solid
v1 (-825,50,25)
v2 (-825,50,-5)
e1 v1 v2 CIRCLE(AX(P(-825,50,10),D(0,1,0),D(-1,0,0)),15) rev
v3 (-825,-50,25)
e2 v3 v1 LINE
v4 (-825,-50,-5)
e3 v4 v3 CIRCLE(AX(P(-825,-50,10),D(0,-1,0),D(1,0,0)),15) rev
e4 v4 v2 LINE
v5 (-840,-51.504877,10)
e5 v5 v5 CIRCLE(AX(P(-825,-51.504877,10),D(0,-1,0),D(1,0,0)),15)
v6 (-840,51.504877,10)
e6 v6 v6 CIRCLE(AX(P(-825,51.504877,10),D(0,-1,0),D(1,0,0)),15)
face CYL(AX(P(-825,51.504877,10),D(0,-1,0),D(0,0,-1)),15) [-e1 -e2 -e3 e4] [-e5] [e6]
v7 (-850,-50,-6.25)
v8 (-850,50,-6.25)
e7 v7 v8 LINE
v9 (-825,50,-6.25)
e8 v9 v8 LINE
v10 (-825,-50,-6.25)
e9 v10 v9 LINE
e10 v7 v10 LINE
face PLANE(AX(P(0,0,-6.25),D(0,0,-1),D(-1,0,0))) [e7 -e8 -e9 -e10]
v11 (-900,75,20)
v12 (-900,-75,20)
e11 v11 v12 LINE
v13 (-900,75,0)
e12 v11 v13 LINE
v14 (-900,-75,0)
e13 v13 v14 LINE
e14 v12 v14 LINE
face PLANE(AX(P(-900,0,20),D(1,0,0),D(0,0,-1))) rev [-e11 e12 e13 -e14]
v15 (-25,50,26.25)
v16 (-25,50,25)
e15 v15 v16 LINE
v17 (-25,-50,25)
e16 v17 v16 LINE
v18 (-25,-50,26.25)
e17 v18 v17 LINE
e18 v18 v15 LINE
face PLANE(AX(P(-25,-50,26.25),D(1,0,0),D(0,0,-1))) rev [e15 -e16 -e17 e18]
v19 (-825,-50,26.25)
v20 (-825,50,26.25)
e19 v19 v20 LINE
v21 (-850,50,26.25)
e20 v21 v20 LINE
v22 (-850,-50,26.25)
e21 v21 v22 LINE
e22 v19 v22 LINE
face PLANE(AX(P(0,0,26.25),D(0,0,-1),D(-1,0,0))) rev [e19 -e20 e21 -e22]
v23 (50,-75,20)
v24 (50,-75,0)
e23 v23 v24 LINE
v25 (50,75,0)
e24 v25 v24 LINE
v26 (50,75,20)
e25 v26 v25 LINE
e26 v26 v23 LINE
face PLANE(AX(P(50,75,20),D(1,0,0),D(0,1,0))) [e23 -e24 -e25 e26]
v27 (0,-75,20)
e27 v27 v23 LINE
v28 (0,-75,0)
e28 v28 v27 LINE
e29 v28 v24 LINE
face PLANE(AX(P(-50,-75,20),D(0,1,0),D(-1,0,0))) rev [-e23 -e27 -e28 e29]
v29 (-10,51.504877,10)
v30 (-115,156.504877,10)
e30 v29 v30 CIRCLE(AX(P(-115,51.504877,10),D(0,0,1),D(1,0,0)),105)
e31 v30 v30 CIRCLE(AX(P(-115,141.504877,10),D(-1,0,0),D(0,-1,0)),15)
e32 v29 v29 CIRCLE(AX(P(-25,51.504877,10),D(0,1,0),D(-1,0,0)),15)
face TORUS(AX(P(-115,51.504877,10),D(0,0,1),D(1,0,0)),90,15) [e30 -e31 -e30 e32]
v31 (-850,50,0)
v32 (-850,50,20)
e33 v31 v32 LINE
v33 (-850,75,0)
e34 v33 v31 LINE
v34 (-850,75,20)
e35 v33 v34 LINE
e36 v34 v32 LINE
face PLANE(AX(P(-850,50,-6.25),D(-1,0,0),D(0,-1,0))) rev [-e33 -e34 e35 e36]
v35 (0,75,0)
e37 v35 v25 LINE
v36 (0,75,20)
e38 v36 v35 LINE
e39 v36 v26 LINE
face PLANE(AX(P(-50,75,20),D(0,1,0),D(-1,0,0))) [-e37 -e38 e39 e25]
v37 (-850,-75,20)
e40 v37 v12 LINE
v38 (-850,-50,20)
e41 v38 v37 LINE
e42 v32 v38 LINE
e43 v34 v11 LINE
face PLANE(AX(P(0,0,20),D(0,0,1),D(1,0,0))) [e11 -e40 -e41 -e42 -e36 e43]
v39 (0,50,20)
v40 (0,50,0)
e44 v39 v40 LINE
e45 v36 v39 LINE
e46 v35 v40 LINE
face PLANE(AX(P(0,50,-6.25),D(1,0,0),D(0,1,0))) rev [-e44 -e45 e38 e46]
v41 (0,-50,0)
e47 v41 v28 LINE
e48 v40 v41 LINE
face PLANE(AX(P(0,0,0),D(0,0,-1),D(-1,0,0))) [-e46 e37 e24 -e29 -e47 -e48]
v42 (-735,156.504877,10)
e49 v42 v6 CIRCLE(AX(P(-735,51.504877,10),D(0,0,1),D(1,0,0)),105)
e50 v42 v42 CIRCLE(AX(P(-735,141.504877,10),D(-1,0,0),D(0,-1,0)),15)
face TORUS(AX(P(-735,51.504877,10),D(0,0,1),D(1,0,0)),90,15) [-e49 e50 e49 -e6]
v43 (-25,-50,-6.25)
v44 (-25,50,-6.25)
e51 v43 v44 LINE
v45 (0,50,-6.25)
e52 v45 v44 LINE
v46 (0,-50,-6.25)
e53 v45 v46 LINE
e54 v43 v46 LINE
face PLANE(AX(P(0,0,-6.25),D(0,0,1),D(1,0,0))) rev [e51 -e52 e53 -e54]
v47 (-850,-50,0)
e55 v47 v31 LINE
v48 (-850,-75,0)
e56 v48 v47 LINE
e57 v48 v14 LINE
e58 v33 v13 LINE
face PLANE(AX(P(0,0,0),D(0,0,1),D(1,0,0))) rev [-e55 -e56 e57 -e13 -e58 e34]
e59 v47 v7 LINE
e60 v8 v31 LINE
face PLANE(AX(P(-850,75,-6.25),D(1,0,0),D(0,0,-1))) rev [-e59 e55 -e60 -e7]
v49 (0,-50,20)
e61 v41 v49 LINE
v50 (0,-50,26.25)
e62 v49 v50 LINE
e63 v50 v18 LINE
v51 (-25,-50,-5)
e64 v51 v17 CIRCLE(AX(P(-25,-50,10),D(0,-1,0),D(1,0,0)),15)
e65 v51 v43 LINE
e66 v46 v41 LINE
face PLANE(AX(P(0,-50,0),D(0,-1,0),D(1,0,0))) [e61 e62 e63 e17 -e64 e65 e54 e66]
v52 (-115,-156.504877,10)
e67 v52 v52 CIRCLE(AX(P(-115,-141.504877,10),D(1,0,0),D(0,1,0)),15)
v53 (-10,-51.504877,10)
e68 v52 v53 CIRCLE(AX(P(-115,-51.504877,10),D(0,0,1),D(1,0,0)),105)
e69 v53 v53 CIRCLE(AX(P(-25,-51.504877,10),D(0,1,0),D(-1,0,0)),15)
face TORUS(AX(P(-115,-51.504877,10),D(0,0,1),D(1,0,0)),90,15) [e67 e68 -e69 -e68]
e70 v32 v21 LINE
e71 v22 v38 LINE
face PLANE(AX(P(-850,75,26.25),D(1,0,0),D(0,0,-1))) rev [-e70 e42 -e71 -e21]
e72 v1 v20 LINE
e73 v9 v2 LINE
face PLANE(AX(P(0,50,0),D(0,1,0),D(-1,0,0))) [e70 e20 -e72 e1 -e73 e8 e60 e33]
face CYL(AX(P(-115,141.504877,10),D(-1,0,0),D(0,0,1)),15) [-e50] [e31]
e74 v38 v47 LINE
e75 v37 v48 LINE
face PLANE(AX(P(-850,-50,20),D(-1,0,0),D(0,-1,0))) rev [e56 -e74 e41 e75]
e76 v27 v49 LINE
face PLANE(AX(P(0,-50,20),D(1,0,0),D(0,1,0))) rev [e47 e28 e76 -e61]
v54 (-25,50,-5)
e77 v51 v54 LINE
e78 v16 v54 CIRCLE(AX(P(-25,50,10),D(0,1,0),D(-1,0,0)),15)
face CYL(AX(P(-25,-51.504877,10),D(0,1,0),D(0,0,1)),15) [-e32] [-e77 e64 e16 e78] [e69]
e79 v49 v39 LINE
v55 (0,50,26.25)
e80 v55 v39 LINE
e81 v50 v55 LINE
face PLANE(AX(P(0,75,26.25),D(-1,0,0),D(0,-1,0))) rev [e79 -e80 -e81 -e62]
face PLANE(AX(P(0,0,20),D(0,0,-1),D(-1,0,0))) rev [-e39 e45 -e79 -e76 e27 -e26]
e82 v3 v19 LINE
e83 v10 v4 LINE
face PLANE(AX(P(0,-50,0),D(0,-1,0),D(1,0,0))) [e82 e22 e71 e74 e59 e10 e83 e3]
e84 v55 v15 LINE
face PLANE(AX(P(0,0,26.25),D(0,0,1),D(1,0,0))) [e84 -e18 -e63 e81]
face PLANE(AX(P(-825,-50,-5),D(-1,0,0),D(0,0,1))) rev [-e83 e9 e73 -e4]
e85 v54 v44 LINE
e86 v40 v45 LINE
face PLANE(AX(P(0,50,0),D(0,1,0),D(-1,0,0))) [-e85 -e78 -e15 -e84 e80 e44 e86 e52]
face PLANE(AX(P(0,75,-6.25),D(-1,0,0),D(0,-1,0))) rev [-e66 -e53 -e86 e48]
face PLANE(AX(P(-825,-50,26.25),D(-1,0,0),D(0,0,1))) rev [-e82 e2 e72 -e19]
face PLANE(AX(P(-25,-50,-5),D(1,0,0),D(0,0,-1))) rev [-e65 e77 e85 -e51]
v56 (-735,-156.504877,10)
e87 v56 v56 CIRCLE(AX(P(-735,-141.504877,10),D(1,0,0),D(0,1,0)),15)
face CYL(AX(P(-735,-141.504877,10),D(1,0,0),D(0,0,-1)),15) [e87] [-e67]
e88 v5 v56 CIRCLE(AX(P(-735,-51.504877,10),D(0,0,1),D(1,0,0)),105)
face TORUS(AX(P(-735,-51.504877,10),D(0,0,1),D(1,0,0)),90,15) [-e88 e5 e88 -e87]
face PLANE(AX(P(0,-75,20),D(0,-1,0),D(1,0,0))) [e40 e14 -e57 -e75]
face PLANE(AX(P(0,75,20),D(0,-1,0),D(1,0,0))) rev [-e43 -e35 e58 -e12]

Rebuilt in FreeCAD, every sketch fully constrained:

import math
import FreeCAD as App
import Part
import Sketcher

V = App.Vector


def add_polygon(sketch, points):
    """Adds a closed chain of lines whose ends are joined by coincident constraints."""
    first, n = sketch.GeometryCount, len(points)
    for a, b in zip(points, points[1:] + points[:1]):
        sketch.addGeometry(Part.LineSegment(App.Vector(*a, 0), App.Vector(*b, 0)), False)
    for i in range(n):
        sketch.addConstraint(Sketcher.Constraint("Coincident", first + i, 2, first + (i + 1) % n, 1))

doc = App.newDocument("Part")
body = doc.addObject("PartDesign::Body", "Body")
body.AllowCompound = True

sketch1 = doc.addObject("Sketcher::SketchObject", "Sketch")
body.addObject(sketch1)
sketch1.AttachmentSupport = (doc.XY_Plane, [""])
sketch1.MapMode = "FlatFace"
add_polygon(sketch1, [(-900, 75), (-900, -75), (-800, -75), (-800, 75)])
add_polygon(sketch1, [(-50, 75), (-50, -75), (50, -75), (50, 75)])
sketch1.addConstraint([
    Sketcher.Constraint("Vertical", 0),
    Sketcher.Constraint("Horizontal", 1),
    Sketcher.Constraint("Vertical", 2),
    Sketcher.Constraint("Horizontal", 3),
    Sketcher.Constraint("Vertical", 4),
    Sketcher.Constraint("Horizontal", 5),
    Sketcher.Constraint("Vertical", 6),
    Sketcher.Constraint("Horizontal", 7),
    Sketcher.Constraint("Symmetric", 4, 2, 6, 2, -1, 1),
    Sketcher.Constraint("Horizontal", 1, 2, 4, 2),
    Sketcher.Constraint("Horizontal", 3, 2, 6, 2),
    Sketcher.Constraint("Equal", 3, 5),
    Sketcher.Constraint("DistanceX", 1, 1, 1, 2, 100.0),
    Sketcher.Constraint("DistanceY", 0, 2, 0, 1, 150.0),
    Sketcher.Constraint("DistanceX", 0, 2, -1, 1, 900.0),
])
pad1 = doc.addObject("PartDesign::Pad", "Pad")
body.addObject(pad1)
pad1.Profile = sketch1
pad1.Length = 20

sketch2 = doc.addObject("Sketcher::SketchObject", "Sketch001")
body.addObject(sketch2)
sketch2.AttachmentSupport = (doc.XY_Plane, [""])
sketch2.MapMode = "FlatFace"
add_polygon(sketch2, [(0, 75), (0, -75), (-50, -75), (-50, 75)])
add_polygon(sketch2, [(-800, 75), (-800, -75), (-850, -75), (-850, 75)])
sketch2.addConstraint([
    Sketcher.Constraint("Vertical", 0),
    Sketcher.Constraint("Horizontal", 1),
    Sketcher.Constraint("Vertical", 2),
    Sketcher.Constraint("Horizontal", 3),
    Sketcher.Constraint("Vertical", 4),
    Sketcher.Constraint("Horizontal", 5),
    Sketcher.Constraint("Vertical", 6),
    Sketcher.Constraint("Horizontal", 7),
    Sketcher.Constraint("Symmetric", 0, 2, 3, 2, -1, 1),
    Sketcher.Constraint("Horizontal", 1, 2, 4, 2),
    Sketcher.Constraint("Horizontal", 3, 2, 6, 2),
    Sketcher.Constraint("Equal", 3, 5),
    Sketcher.Constraint("DistanceX", 1, 2, 1, 1, 50.0),
    Sketcher.Constraint("DistanceY", 0, 2, 0, 1, 150.0),
    Sketcher.Constraint("DistanceX", 4, 2, -1, 1, 800.0),
])
pad2 = doc.addObject("PartDesign::Pad", "Pad001")
body.addObject(pad2)
pad2.Profile = sketch2
pad2.Length = 6.25
pad2.Reversed = True

sketch3 = doc.addObject("Sketcher::SketchObject", "Sketch002")
body.addObject(sketch3)
sketch3.AttachmentSupport = (doc.XY_Plane, [""])
sketch3.MapMode = "FlatFace"
sketch3.AttachmentOffset = App.Placement(V(0, 0, 20), App.Rotation())
add_polygon(sketch3, [(-850, 75), (-850, -75), (-800, -75), (-800, 75)])
add_polygon(sketch3, [(-50, 75), (-50, -75), (0, -75), (0, 75)])
sketch3.addConstraint([
    Sketcher.Constraint("Vertical", 0),
    Sketcher.Constraint("Horizontal", 1),
    Sketcher.Constraint("Vertical", 2),
    Sketcher.Constraint("Horizontal", 3),
    Sketcher.Constraint("Vertical", 4),
    Sketcher.Constraint("Horizontal", 5),
    Sketcher.Constraint("Vertical", 6),
    Sketcher.Constraint("Horizontal", 7),
    Sketcher.Constraint("Symmetric", 5, 2, 6, 2, -1, 1),
    Sketcher.Constraint("Horizontal", 1, 2, 4, 2),
    Sketcher.Constraint("Horizontal", 3, 2, 6, 2),
    Sketcher.Constraint("Equal", 3, 5),
    Sketcher.Constraint("DistanceX", 1, 1, 1, 2, 50.0),
    Sketcher.Constraint("DistanceY", 0, 2, 0, 1, 150.0),
    Sketcher.Constraint("DistanceX", 0, 2, -1, 1, 850.0),
])
pad3 = doc.addObject("PartDesign::Pad", "Pad002")
body.addObject(pad3)
pad3.Profile = sketch3
pad3.Length = 6.25

sketch4 = doc.addObject("Sketcher::SketchObject", "Sketch003")
body.addObject(sketch4)
sketch4.AttachmentSupport = (doc.XZ_Plane, [""])
sketch4.MapMode = "FlatFace"
sketch4.AttachmentOffset = App.Placement(V(0, 0, -75), App.Rotation())
add_polygon(sketch4, [(-850, -6.25), (-850, 26.25), (0, 26.25), (0, -6.25)])
sketch4.addConstraint([
    Sketcher.Constraint("Vertical", 0),
    Sketcher.Constraint("Horizontal", 1),
    Sketcher.Constraint("Vertical", 2),
    Sketcher.Constraint("Horizontal", 3),
    Sketcher.Constraint("PointOnObject", 1, 2, -2),
    Sketcher.Constraint("DistanceX", 1, 1, 1, 2, 850.0),
    Sketcher.Constraint("DistanceY", 0, 1, 0, 2, 32.5),
    Sketcher.Constraint("DistanceY", -1, 1, 0, 2, 26.25),
])
pocket1 = doc.addObject("PartDesign::Pocket", "Pocket")
body.addObject(pocket1)
pocket1.Profile = sketch4
pocket1.Length = 25
pocket1.Reversed = True

sketch5 = doc.addObject("Sketcher::SketchObject", "Sketch004")
body.addObject(sketch5)
sketch5.AttachmentSupport = (doc.XZ_Plane, [""])
sketch5.MapMode = "FlatFace"
sketch5.AttachmentOffset = App.Placement(V(0, 0, 75), App.Rotation())
add_polygon(sketch5, [(-850, -6.25), (-850, 26.25), (0, 26.25), (0, -6.25)])
sketch5.addConstraint([
    Sketcher.Constraint("Vertical", 0),
    Sketcher.Constraint("Horizontal", 1),
    Sketcher.Constraint("Vertical", 2),
    Sketcher.Constraint("Horizontal", 3),
    Sketcher.Constraint("PointOnObject", 1, 2, -2),
    Sketcher.Constraint("DistanceX", 1, 1, 1, 2, 850.0),
    Sketcher.Constraint("DistanceY", 0, 1, 0, 2, 32.5),
    Sketcher.Constraint("DistanceY", -1, 1, 0, 2, 26.25),
])
pocket2 = doc.addObject("PartDesign::Pocket", "Pocket001")
body.addObject(pocket2)
pocket2.Profile = sketch5
pocket2.Length = 25

sketch6 = doc.addObject("Sketcher::SketchObject", "Sketch005")
body.addObject(sketch6)
sketch6.AttachmentSupport = (doc.YZ_Plane, [""])
sketch6.MapMode = "FlatFace"
sketch6.AttachmentOffset = App.Placement(V(0, 0, -115), App.Rotation())
sketch6.addGeometry(Part.Circle(V(-141.504877, 10, 0), V(0, 0, 1), 15), False)
sketch6.addConstraint([
    Sketcher.Constraint("Diameter", 0, 30.0),
    Sketcher.Constraint("DistanceY", -1, 1, 0, 3, 10.0),
    Sketcher.Constraint("DistanceX", 0, 3, -1, 1, 141.504877),
])

sketch7 = doc.addObject("Sketcher::SketchObject", "Sketch006")
body.addObject(sketch7)
sketch7.AttachmentSupport = (doc.XY_Plane, [""])
sketch7.MapMode = "FlatFace"
sketch7.AttachmentOffset = App.Placement(V(0, 0, 10), App.Rotation())
sketch7.addGeometry([
    Part.LineSegment(V(-115, -141.504877, 0), V(-735, -141.504877, 0)),
    Part.ArcOfCircle(Part.Circle(V(-735, -51.504877, 0), V(0, 0, 1), 90), math.radians(180), math.radians(270)),
    Part.LineSegment(V(-825, -51.504877, 0), V(-825, 51.504877, 0)),
    Part.ArcOfCircle(Part.Circle(V(-735, 51.504877, 0), V(0, 0, 1), 90), math.radians(90), math.radians(180)),
    Part.LineSegment(V(-735, 141.504877, 0), V(-115, 141.504877, 0)),
    Part.ArcOfCircle(Part.Circle(V(-115, 51.504877, 0), V(0, 0, 1), 90), math.radians(0), math.radians(90)),
    Part.LineSegment(V(-25, 51.504877, 0), V(-25, -51.504877, 0)),
    Part.ArcOfCircle(Part.Circle(V(-115, -51.504877, 0), V(0, 0, 1), 90), math.radians(-90), math.radians(0)),
], False)
sketch7.addConstraint([
    Sketcher.Constraint("Tangent", 0, 2, 1, 2),
    Sketcher.Constraint("Tangent", 1, 1, 2, 1),
    Sketcher.Constraint("Tangent", 2, 2, 3, 2),
    Sketcher.Constraint("Tangent", 3, 1, 4, 1),
    Sketcher.Constraint("Tangent", 4, 2, 5, 2),
    Sketcher.Constraint("Tangent", 5, 1, 6, 1),
    Sketcher.Constraint("Tangent", 6, 2, 7, 2),
    Sketcher.Constraint("Tangent", 7, 1, 0, 1),
    Sketcher.Constraint("Horizontal", 0),
    Sketcher.Constraint("Vertical", 2),
    Sketcher.Constraint("Horizontal", 4),
    Sketcher.Constraint("Vertical", 6),
    Sketcher.Constraint("Equal", 1, 3),
    Sketcher.Constraint("Equal", 3, 5),
    Sketcher.Constraint("Equal", 5, 7),
    Sketcher.Constraint("Radius", 1, 90.0),
    Sketcher.Constraint("DistanceX", 0, 2, 0, 1, 620.0),
    Sketcher.Constraint("DistanceX", 1, 3, -1, 1, 735.0),
    Sketcher.Constraint("DistanceY", 2, 1, 2, 2, 103.009754),
    Sketcher.Constraint("DistanceY", 1, 3, -1, 1, 51.504877),
])
doc.recompute()

additivepipe = doc.addObject("PartDesign::AdditivePipe", "AdditivePipe")
body.addObject(additivepipe)
additivepipe.Profile = sketch6
additivepipe.Spine = (sketch7, ["Edge1", "Edge2", "Edge3", "Edge4", "Edge5", "Edge6", "Edge7", "Edge8"])

sketch8 = doc.addObject("Sketcher::SketchObject", "Sketch007")
body.addObject(sketch8)
sketch8.AttachmentSupport = (doc.XZ_Plane, [""])
sketch8.MapMode = "FlatFace"
sketch8.addGeometry([
    Part.LineSegment(V(-825, 25, 0), V(-825, 26.25, 0)),
    Part.LineSegment(V(-825, 26.25, 0), V(-800, 26.25, 0)),
    Part.LineSegment(V(-800, 26.25, 0), V(-800, -6.25, 0)),
    Part.LineSegment(V(-800, -6.25, 0), V(-825, -6.25, 0)),
    Part.LineSegment(V(-825, -6.25, 0), V(-825, -5, 0)),
    Part.ArcOfCircle(Part.Circle(V(-825, 10, 0), V(0, 0, 1), 15), math.radians(-90), math.radians(90)),
    Part.LineSegment(V(-50, 26.25, 0), V(-25, 26.25, 0)),
    Part.LineSegment(V(-25, 26.25, 0), V(-25, 25, 0)),
    Part.ArcOfCircle(Part.Circle(V(-25, 10, 0), V(0, 0, 1), 15), math.radians(90), math.radians(270)),
    Part.LineSegment(V(-25, -5, 0), V(-25, -6.25, 0)),
    Part.LineSegment(V(-25, -6.25, 0), V(-50, -6.25, 0)),
    Part.LineSegment(V(-50, -6.25, 0), V(-50, 26.25, 0)),
], False)
sketch8.addConstraint([
    Sketcher.Constraint("Coincident", 0, 2, 1, 1),
    Sketcher.Constraint("Coincident", 1, 2, 2, 1),
    Sketcher.Constraint("Coincident", 2, 2, 3, 1),
    Sketcher.Constraint("Coincident", 3, 2, 4, 1),
    Sketcher.Constraint("Coincident", 4, 2, 5, 1),
    Sketcher.Constraint("Coincident", 5, 2, 0, 1),
    Sketcher.Constraint("Coincident", 6, 2, 7, 1),
    Sketcher.Constraint("Coincident", 7, 2, 8, 1),
    Sketcher.Constraint("Coincident", 8, 2, 9, 1),
    Sketcher.Constraint("Coincident", 9, 2, 10, 1),
    Sketcher.Constraint("Coincident", 10, 2, 11, 1),
    Sketcher.Constraint("Coincident", 11, 2, 6, 1),
    Sketcher.Constraint("Vertical", 0),
    Sketcher.Constraint("Horizontal", 1),
    Sketcher.Constraint("Vertical", 2),
    Sketcher.Constraint("Horizontal", 3),
    Sketcher.Constraint("Vertical", 4),
    Sketcher.Constraint("Horizontal", 6),
    Sketcher.Constraint("Vertical", 7),
    Sketcher.Constraint("Vertical", 9),
    Sketcher.Constraint("Horizontal", 10),
    Sketcher.Constraint("Vertical", 11),
    Sketcher.Constraint("Equal", 5, 8),
    Sketcher.Constraint("Horizontal", 5, 3, 8, 3),
    Sketcher.Constraint("Horizontal", 1, 2, 6, 2),
    Sketcher.Constraint("Horizontal", 3, 2, 9, 2),
    Sketcher.Constraint("Vertical", 5, 3, 0, 2),
    Sketcher.Constraint("Vertical", 0, 2, 3, 2),
    Sketcher.Constraint("Vertical", 8, 3, 6, 2),
    Sketcher.Constraint("Vertical", 7, 2, 8, 2),
    Sketcher.Constraint("Equal", 3, 6),
    Sketcher.Constraint("Equal", 0, 4),
    Sketcher.Constraint("Radius", 5, 15.0),
    Sketcher.Constraint("DistanceX", 1, 1, 1, 2, 25.0),
    Sketcher.Constraint("DistanceY", 2, 2, 2, 1, 32.5),
    Sketcher.Constraint("DistanceX", 5, 3, -1, 1, 825.0),
    Sketcher.Constraint("DistanceY", -1, 1, 5, 3, 10.0),
    Sketcher.Constraint("DistanceX", 8, 3, -1, 1, 25.0),
])
pocket3 = doc.addObject("PartDesign::Pocket", "Pocket002")
body.addObject(pocket3)
pocket3.Profile = sketch8
pocket3.Length = 100
pocket3.Midplane = True

doc.recompute()
